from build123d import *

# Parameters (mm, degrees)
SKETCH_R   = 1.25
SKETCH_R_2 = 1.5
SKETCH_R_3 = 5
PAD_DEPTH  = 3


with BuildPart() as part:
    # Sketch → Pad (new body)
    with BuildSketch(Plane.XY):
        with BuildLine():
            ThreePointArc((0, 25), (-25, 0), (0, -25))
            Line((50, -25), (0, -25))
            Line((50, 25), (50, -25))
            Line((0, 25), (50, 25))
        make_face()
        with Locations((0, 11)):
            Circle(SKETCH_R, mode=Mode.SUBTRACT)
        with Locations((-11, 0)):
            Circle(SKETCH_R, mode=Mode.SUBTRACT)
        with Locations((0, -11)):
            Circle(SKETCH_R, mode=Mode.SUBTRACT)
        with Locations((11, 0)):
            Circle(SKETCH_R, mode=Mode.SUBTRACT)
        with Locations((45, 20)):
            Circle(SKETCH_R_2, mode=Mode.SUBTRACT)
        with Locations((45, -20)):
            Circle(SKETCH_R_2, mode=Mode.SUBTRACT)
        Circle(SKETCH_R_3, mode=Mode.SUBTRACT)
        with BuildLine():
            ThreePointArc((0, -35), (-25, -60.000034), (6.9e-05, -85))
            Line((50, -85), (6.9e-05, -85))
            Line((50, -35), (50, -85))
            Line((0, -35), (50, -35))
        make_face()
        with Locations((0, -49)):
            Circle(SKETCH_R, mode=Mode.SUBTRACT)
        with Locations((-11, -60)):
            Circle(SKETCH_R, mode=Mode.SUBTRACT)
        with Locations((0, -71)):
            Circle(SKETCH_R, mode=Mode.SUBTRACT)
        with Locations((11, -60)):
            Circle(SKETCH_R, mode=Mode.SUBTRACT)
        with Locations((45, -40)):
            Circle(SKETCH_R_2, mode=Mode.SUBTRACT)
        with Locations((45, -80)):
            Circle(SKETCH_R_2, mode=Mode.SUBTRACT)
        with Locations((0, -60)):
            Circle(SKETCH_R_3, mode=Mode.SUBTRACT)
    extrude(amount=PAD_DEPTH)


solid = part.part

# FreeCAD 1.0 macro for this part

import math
import FreeCAD as App
import Part
import Sketcher
Q = App.Units.Quantity

doc = App.newDocument("Part")
body = doc.addObject("PartDesign::Body", "Body")
body.AllowCompound = True

sketch1 = body.newObject("Sketcher::SketchObject", "Sketch")
sketch1.AttachmentSupport = (doc.getObject("XY_Plane"), [""])
sketch1.MapMode = "FlatFace"
sketch1.addGeometry([
    Part.ArcOfCircle(Part.Circle(App.Vector(0, 0, 0), App.Vector(0, 0, 1), 25), math.radians(90), math.radians(270)),
    Part.LineSegment(App.Vector(0, -25, 0), App.Vector(50, -25, 0)),
    Part.LineSegment(App.Vector(50, -25, 0), App.Vector(50, 25, 0)),
    Part.LineSegment(App.Vector(50, 25, 0), App.Vector(0, 25, 0)),
    Part.Circle(App.Vector(0, -11, 0), App.Vector(0, 0, 1), 1.25),
    Part.Circle(App.Vector(45, -20, 0), App.Vector(0, 0, 1), 1.5),
    Part.Circle(App.Vector(-11, 0, 0), App.Vector(0, 0, 1), 1.25),
    Part.Circle(App.Vector(0, 0, 0), App.Vector(0, 0, 1), 5),
    Part.Circle(App.Vector(11, 0, 0), App.Vector(0, 0, 1), 1.25),
    Part.Circle(App.Vector(0, 11, 0), App.Vector(0, 0, 1), 1.25),
    Part.Circle(App.Vector(45, 20, 0), App.Vector(0, 0, 1), 1.5),
    Part.ArcOfCircle(Part.Circle(App.Vector(0, -60, 0), App.Vector(0, 0, 1), 25), math.radians(90), math.radians(270.000158)),
    Part.LineSegment(App.Vector(0.000069, -85, 0), App.Vector(50, -85, 0)),
    Part.LineSegment(App.Vector(50, -85, 0), App.Vector(50, -35, 0)),
    Part.LineSegment(App.Vector(50, -35, 0), App.Vector(0, -35, 0)),
    Part.Circle(App.Vector(0, -71, 0), App.Vector(0, 0, 1), 1.25),
    Part.Circle(App.Vector(45, -80, 0), App.Vector(0, 0, 1), 1.5),
    Part.Circle(App.Vector(-11, -60, 0), App.Vector(0, 0, 1), 1.25),
    Part.Circle(App.Vector(0, -60, 0), App.Vector(0, 0, 1), 5),
    Part.Circle(App.Vector(11, -60, 0), App.Vector(0, 0, 1), 1.25),
    Part.Circle(App.Vector(0, -49, 0), App.Vector(0, 0, 1), 1.25),
    Part.Circle(App.Vector(45, -40, 0), App.Vector(0, 0, 1), 1.5),
], False)
sketch1.addConstraint([
    Sketcher.Constraint("Tangent", 0, 2, 1, 1),
    Sketcher.Constraint("Coincident", 1, 2, 2, 1),
    Sketcher.Constraint("Coincident", 2, 2, 3, 1),
    Sketcher.Constraint("Tangent", 3, 2, 0, 1),
    Sketcher.Constraint("Coincident", 11, 2, 12, 1),
    Sketcher.Constraint("Coincident", 12, 2, 13, 1),
    Sketcher.Constraint("Coincident", 13, 2, 14, 1),
    Sketcher.Constraint("Tangent", 14, 2, 11, 1),
    Sketcher.Constraint("Horizontal", 1),
    Sketcher.Constraint("Vertical", 2),
    Sketcher.Constraint("Horizontal", 3),
    Sketcher.Constraint("Horizontal", 12),
    Sketcher.Constraint("Vertical", 13),
    Sketcher.Constraint("Horizontal", 14),
    Sketcher.Constraint("Coincident", 0, 3, -1, 1),
    Sketcher.Constraint("Coincident", 7, 3, -1, 1),
    Sketcher.Constraint("Coincident", 18, 3, 11, 3),
    Sketcher.Constraint("Equal", 4, 6),
    Sketcher.Constraint("Equal", 6, 8),
    Sketcher.Constraint("Equal", 8, 9),
    Sketcher.Constraint("Equal", 5, 10),
    Sketcher.Constraint("Equal", 0, 11),
    Sketcher.Constraint("Equal", 9, 15),
    Sketcher.Constraint("Equal", 10, 16),
    Sketcher.Constraint("Equal", 15, 17),
    Sketcher.Constraint("Equal", 7, 18),
    Sketcher.Constraint("Equal", 17, 19),
    Sketcher.Constraint("Equal", 19, 20),
    Sketcher.Constraint("Equal", 16, 21),
    Sketcher.Constraint("Symmetric", 6, 3, 8, 3, -1, 1),
    Sketcher.Constraint("Symmetric", 4, 3, 9, 3, -1, 1),
    Sketcher.Constraint("Symmetric", 17, 3, 19, 3, -2),
    Sketcher.Constraint("Symmetric", 5, 3, 10, 3, -1),
    Sketcher.Constraint("PointOnObject", 4, 3, -2),
    Sketcher.Constraint("PointOnObject", 6, 3, -1),
    Sketcher.Constraint("PointOnObject", 11, 3, -2),
    Sketcher.Constraint("PointOnObject", 15, 3, -2),
    Sketcher.Constraint("PointOnObject", 20, 3, -2),
    Sketcher.Constraint("Horizontal", 11, 3, 17, 3),
    Sketcher.Constraint("Vertical", 10, 3, 16, 3),
    Sketcher.Constraint("Vertical", 6, 3, 17, 3),
    Sketcher.Constraint("Vertical", 16, 3, 21, 3),
    Sketcher.Constraint("Vertical", 2, 2, 12, 2),
    Sketcher.Constraint("Equal", 14, 2),
    Sketcher.Constraint("Diameter", 5, Q("3 mm")),
    Sketcher.Constraint("Diameter", 7, Q("10 mm")),
    Sketcher.Constraint("Radius", 0, Q("25 mm")),
    Sketcher.Constraint("Diameter", 4, Q("2.5 mm")),
    Sketcher.Constraint("DistanceY", 4, 3, -1, 1, Q("11 mm")),
    Sketcher.Constraint("DistanceX", -1, 1, 5, 3, Q("45 mm")),
    Sketcher.Constraint("DistanceY", 5, 3, -1, 1, Q("20 mm")),
    Sketcher.Constraint("DistanceX", 6, 3, -1, 1, Q("11 mm")),
    Sketcher.Constraint("DistanceY", 11, 3, -1, 1, Q("60 mm")),
    Sketcher.Constraint("DistanceY", 15, 3, -1, 1, Q("71 mm")),
    Sketcher.Constraint("DistanceY", 16, 3, -1, 1, Q("80 mm")),
    Sketcher.Constraint("DistanceY", 20, 3, -1, 1, Q("49 mm")),
    Sketcher.Constraint("DistanceY", 21, 3, -1, 1, Q("40 mm")),
    Sketcher.Constraint("DistanceX", 12, 1, 12, 2, Q("49.999931 mm")),
])
pad1 = body.newObject("PartDesign::Pad", "Pad")
pad1.Profile = sketch1
pad1.Length = 3

doc.recompute()
